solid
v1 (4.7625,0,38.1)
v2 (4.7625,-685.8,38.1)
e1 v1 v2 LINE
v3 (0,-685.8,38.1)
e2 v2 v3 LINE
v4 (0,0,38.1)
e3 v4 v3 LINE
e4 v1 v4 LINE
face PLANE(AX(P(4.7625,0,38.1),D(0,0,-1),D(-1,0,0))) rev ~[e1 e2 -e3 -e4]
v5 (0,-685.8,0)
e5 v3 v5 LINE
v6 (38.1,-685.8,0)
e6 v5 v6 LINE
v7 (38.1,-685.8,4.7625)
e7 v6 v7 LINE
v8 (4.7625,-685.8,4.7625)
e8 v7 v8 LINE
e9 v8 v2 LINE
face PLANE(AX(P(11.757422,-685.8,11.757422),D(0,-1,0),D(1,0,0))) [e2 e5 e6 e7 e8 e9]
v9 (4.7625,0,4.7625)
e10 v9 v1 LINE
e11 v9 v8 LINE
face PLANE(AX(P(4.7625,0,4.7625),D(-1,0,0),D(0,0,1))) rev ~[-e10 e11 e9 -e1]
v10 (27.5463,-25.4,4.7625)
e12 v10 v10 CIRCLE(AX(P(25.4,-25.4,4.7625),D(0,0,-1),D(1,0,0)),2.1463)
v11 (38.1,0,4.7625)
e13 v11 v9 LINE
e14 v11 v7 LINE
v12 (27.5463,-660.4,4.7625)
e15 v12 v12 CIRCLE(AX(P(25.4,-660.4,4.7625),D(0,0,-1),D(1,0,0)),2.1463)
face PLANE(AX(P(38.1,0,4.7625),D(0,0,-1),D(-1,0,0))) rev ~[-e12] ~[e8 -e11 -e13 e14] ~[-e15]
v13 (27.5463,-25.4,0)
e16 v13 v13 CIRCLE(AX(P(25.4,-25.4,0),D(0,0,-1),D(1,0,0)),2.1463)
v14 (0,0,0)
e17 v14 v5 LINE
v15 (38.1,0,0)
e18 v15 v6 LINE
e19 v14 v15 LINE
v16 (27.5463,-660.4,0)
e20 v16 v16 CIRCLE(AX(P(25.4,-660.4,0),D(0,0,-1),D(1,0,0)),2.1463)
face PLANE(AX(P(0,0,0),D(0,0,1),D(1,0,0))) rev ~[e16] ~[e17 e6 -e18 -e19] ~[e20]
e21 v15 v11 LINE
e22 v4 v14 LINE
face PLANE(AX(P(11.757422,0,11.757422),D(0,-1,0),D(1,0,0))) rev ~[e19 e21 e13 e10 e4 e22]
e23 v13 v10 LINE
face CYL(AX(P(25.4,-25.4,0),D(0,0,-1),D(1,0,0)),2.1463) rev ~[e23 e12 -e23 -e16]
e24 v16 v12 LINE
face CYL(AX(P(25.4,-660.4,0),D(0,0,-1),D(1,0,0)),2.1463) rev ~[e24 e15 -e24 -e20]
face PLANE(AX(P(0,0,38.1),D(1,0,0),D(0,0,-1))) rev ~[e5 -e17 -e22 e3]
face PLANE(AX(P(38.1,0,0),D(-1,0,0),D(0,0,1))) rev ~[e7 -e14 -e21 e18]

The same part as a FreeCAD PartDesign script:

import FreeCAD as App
import Part
import Sketcher

V = App.Vector
Q = App.Units.Quantity


def add_polygon(sketch, points):
    """Adds a closed chain of lines whose ends are joined by coincident constraints."""
    first, n = sketch.GeometryCount, len(points)
    for a, b in zip(points, points[1:] + points[:1]):
        sketch.addGeometry(Part.LineSegment(App.Vector(*a, 0), App.Vector(*b, 0)), False)
    for i in range(n):
        sketch.addConstraint(Sketcher.Constraint("Coincident", first + i, 2, first + (i + 1) % n, 1))

doc = App.newDocument("Part")
params = doc.addObject("Spreadsheet::Sheet", "Params")
for row, (alias, value) in enumerate([
    ("sketch1_width", "1.5 in"),
    ("sketch1_width2", "1.3125 in"),
    ("pad1_length", "27 in"),
    ("sketch2_diameter", "0.169 in"),
    ("pocket1_length", "1 in"),
], start=1):
    params.set(f"A{row}", alias)
    params.set(f"B{row}", "=" + value)
    params.setAlias(f"B{row}", alias)

body = doc.addObject("PartDesign::Body", "Body")

# Sketch on XZ plane
sketch1 = body.newObject("Sketcher::SketchObject", "Sketch")
sketch1.AttachmentSupport = (doc.getObject("XZ_Plane"), [""])
sketch1.MapMode = "FlatFace"
add_polygon(sketch1, [(0, 38.1), (0, 0), (38.1, 0), (38.1, 4.8), (4.8, 4.8), (4.8, 38.1)])  # lines 0-5
sketch1.addConstraint(Sketcher.Constraint("Vertical", 0))
sketch1.addConstraint(Sketcher.Constraint("Horizontal", 1))
sketch1.addConstraint(Sketcher.Constraint("Vertical", 2))
sketch1.addConstraint(Sketcher.Constraint("Horizontal", 3))
sketch1.addConstraint(Sketcher.Constraint("Vertical", 4))
sketch1.addConstraint(Sketcher.Constraint("Horizontal", 5))
sketch1.addConstraint(Sketcher.Constraint("Coincident", 0, 2, -1, 1))
sketch1.addConstraint(Sketcher.Constraint("Equal", 1, 0))
sketch1.addConstraint(Sketcher.Constraint("Equal", 5, 2))
sketch1.addConstraint(Sketcher.Constraint("DistanceX", 1, 1, 1, 2, Q("1.5 in")))
sketch1.addConstraint(Sketcher.Constraint("DistanceX", 3, 2, 3, 1, Q("1.3125 in")))
sketch1.setExpression("Constraints[15]", "Params.sketch1_width")
sketch1.setExpression("Constraints[16]", "Params.sketch1_width2")
pad1 = body.newObject("PartDesign::Pad", "Pad")
pad1.Profile = sketch1
pad1.setExpression("Length", "Params.pad1_length")

# Sketch on XY plane
sketch2 = body.newObject("Sketcher::SketchObject", "Sketch001")
sketch2.AttachmentSupport = (doc.getObject("XY_Plane"), [""])
sketch2.MapMode = "FlatFace"
sketch2.addGeometry(Part.Circle(V(25.4, -660.4, 0), V(0, 0, 1), 2.1), False)
sketch2.addGeometry(Part.Circle(V(25.4, -25.4, 0), V(0, 0, 1), 2.1), False)
sketch2.addConstraint(Sketcher.Constraint("Equal", 0, 1))
sketch2.addConstraint(Sketcher.Constraint("Vertical", 0, 3, 1, 3))
sketch2.addConstraint(Sketcher.Constraint("Diameter", 0, Q("0.169 in")))
sketch2.addConstraint(Sketcher.Constraint("DistanceX", -1, 1, 0, 3, Q("1 in")))
sketch2.addConstraint(Sketcher.Constraint("DistanceY", 0, 3, -1, 1, Q("26 in")))
sketch2.addConstraint(Sketcher.Constraint("DistanceY", 1, 3, -1, 1, Q("1 in")))
sketch2.setExpression("Constraints[2]", "Params.sketch2_diameter")
pocket1 = body.newObject("PartDesign::Pocket", "Pocket")
pocket1.Profile = sketch2
pocket1.setExpression("Length", "Params.pocket1_length")
pocket1.Reversed = True

doc.recompute()
